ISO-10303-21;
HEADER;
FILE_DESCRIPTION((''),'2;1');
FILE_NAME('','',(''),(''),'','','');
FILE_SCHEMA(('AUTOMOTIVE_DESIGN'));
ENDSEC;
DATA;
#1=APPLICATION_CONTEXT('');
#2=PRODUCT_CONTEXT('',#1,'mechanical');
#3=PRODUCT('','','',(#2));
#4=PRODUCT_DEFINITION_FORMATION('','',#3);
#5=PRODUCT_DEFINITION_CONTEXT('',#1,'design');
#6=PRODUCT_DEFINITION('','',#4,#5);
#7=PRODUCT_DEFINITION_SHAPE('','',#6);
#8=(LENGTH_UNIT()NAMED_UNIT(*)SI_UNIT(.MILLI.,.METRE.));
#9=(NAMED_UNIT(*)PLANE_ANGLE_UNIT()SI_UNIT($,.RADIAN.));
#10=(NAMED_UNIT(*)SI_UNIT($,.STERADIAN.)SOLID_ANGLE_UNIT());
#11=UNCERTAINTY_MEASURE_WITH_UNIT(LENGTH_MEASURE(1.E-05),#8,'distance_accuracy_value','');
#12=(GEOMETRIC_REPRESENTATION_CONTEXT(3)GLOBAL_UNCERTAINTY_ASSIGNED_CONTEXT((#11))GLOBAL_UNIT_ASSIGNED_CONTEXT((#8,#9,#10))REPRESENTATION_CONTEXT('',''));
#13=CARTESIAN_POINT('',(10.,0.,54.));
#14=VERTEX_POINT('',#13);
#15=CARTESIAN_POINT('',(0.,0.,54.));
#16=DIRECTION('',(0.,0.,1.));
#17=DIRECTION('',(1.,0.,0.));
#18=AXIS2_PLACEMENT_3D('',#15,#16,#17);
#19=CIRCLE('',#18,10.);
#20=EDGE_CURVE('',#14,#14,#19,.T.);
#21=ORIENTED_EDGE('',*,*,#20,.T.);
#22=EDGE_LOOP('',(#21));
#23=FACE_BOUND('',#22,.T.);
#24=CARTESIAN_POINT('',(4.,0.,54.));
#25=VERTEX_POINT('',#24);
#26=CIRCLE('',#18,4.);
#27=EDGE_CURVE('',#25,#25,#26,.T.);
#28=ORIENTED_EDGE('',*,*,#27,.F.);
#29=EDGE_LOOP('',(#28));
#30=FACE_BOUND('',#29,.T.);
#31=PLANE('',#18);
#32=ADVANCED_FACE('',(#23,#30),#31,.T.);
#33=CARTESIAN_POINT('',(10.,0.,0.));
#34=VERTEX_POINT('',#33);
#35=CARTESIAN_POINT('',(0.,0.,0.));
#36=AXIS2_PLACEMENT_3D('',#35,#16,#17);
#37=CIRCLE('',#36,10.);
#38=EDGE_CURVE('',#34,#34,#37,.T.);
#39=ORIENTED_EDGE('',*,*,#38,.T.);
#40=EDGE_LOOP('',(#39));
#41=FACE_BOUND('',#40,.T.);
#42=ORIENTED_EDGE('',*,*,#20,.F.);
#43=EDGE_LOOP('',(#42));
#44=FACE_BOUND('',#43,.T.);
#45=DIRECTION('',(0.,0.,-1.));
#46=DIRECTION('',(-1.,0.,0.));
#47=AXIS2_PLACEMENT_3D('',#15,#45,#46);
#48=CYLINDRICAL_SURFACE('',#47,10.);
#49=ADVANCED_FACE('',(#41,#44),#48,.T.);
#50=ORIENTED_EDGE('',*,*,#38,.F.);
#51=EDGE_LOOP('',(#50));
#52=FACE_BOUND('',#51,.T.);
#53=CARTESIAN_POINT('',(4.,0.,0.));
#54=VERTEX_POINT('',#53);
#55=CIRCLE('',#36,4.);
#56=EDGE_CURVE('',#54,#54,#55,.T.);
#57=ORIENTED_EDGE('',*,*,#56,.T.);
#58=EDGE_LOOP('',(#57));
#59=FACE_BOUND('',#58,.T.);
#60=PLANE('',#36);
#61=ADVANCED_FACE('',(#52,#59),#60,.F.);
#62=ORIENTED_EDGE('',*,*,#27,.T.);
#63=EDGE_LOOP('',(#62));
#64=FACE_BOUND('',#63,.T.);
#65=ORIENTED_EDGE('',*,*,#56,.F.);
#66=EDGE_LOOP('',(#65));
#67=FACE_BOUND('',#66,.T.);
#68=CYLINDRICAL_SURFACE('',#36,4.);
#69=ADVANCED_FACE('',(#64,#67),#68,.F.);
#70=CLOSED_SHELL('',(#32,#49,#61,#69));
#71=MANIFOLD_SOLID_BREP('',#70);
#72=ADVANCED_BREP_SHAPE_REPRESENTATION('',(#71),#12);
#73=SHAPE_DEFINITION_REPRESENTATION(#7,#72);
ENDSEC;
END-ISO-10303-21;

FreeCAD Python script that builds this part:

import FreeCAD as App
import Part
import Sketcher
from FreeCAD import Vector

doc = App.newDocument("Part")
body = doc.addObject("PartDesign::Body", "Body")

# Sketch on XY plane
sketch1 = body.newObject("Sketcher::SketchObject", "Sketch")
sketch1.AttachmentSupport = (doc.getObject("XY_Plane"), [""])
sketch1.MapMode = "FlatFace"
sketch1.addGeometry(Part.Circle(Vector(0, 0, 0), Vector(0, 0, 1), 10), False)
sketch1.addConstraint(Sketcher.Constraint("Coincident", 0, 3, -1, 1))
sketch1.addConstraint(Sketcher.Constraint("Diameter", 0, 20.0))
pad1 = body.newObject("PartDesign::Pad", "Pad")
pad1.Profile = sketch1
pad1.Length = 54

# Sketch on XY plane
sketch2 = body.newObject("Sketcher::SketchObject", "Sketch001")
sketch2.AttachmentSupport = (doc.getObject("XY_Plane"), [""])
sketch2.MapMode = "FlatFace"
sketch2.AttachmentOffset = App.Placement(Vector(0, 0, 54), App.Rotation())
sketch2.addGeometry(Part.Circle(Vector(0, 0, 0), Vector(0, 0, 1), 4), False)
sketch2.addConstraint(Sketcher.Constraint("Coincident", 0, 3, -1, 1))
sketch2.addConstraint(Sketcher.Constraint("Diameter", 0, 8.0))
pocket1 = body.newObject("PartDesign::Pocket", "Pocket")
pocket1.Profile = sketch2
pocket1.Type = "ThroughAll"

doc.recompute()
